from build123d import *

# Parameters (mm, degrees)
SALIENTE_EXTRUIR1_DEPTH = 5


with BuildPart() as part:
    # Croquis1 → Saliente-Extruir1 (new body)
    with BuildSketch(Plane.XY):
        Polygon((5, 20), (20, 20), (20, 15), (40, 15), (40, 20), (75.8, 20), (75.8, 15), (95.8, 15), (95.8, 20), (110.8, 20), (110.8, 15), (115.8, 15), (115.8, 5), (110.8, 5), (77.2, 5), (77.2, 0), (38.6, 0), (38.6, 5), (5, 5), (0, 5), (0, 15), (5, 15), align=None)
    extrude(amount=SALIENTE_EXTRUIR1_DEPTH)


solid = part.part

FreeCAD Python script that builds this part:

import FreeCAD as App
import Part
import Sketcher

V = App.Vector

doc = App.newDocument("Part")
body = doc.addObject("PartDesign::Body", "Body")

sketch1 = doc.addObject("Sketcher::SketchObject", "Sketch")
body.addObject(sketch1)
sketch1.AttachmentSupport = (doc.XY_Plane, [""])
sketch1.MapMode = "FlatFace"
sketch1.addGeometry([
    Part.LineSegment(V(20, 20, 0), V(5, 20, 0)),
    Part.LineSegment(V(5, 20, 0), V(5, 15, 0)),
    Part.LineSegment(V(5, 15, 0), V(0, 15, 0)),
    Part.LineSegment(V(0, 15, 0), V(0, 5, 0)),
    Part.LineSegment(V(0, 5, 0), V(38.6, 5, 0)),
    Part.LineSegment(V(38.6, 5, 0), V(38.6, 0, 0)),
    Part.LineSegment(V(38.6, 0, 0), V(77.2, 0, 0)),
    Part.LineSegment(V(77.2, 0, 0), V(77.2, 5, 0)),
    Part.LineSegment(V(77.2, 5, 0), V(115.8, 5, 0)),
    Part.LineSegment(V(115.8, 5, 0), V(115.8, 15, 0)),
    Part.LineSegment(V(115.8, 15, 0), V(110.8, 15, 0)),
    Part.LineSegment(V(110.8, 15, 0), V(110.8, 20, 0)),
    Part.LineSegment(V(110.8, 20, 0), V(95.8, 20, 0)),
    Part.LineSegment(V(95.8, 20, 0), V(95.8, 15, 0)),
    Part.LineSegment(V(95.8, 15, 0), V(75.8, 15, 0)),
    Part.LineSegment(V(75.8, 15, 0), V(75.8, 20, 0)),
    Part.LineSegment(V(75.8, 20, 0), V(40, 20, 0)),
    Part.LineSegment(V(40, 20, 0), V(40, 15, 0)),
    Part.LineSegment(V(40, 15, 0), V(20, 15, 0)),
    Part.LineSegment(V(20, 15, 0), V(20, 20, 0)),
], False)
sketch1.addConstraint([
    Sketcher.Constraint("Coincident", 0, 2, 1, 1),
    Sketcher.Constraint("Coincident", 1, 2, 2, 1),
    Sketcher.Constraint("Coincident", 2, 2, 3, 1),
    Sketcher.Constraint("Coincident", 3, 2, 4, 1),
    Sketcher.Constraint("Coincident", 4, 2, 5, 1),
    Sketcher.Constraint("Coincident", 5, 2, 6, 1),
    Sketcher.Constraint("Coincident", 6, 2, 7, 1),
    Sketcher.Constraint("Coincident", 7, 2, 8, 1),
    Sketcher.Constraint("Coincident", 8, 2, 9, 1),
    Sketcher.Constraint("Coincident", 9, 2, 10, 1),
    Sketcher.Constraint("Coincident", 10, 2, 11, 1),
    Sketcher.Constraint("Coincident", 11, 2, 12, 1),
    Sketcher.Constraint("Coincident", 12, 2, 13, 1),
    Sketcher.Constraint("Coincident", 13, 2, 14, 1),
    Sketcher.Constraint("Coincident", 14, 2, 15, 1),
    Sketcher.Constraint("Coincident", 15, 2, 16, 1),
    Sketcher.Constraint("Coincident", 16, 2, 17, 1),
    Sketcher.Constraint("Coincident", 17, 2, 18, 1),
    Sketcher.Constraint("Coincident", 18, 2, 19, 1),
    Sketcher.Constraint("Coincident", 19, 2, 0, 1),
    Sketcher.Constraint("Horizontal", 0),
    Sketcher.Constraint("Vertical", 1),
    Sketcher.Constraint("Horizontal", 2),
    Sketcher.Constraint("Vertical", 3),
    Sketcher.Constraint("Horizontal", 4),
    Sketcher.Constraint("Vertical", 5),
    Sketcher.Constraint("Horizontal", 6),
    Sketcher.Constraint("Vertical", 7),
    Sketcher.Constraint("Horizontal", 8),
    Sketcher.Constraint("Vertical", 9),
    Sketcher.Constraint("Horizontal", 10),
    Sketcher.Constraint("Vertical", 11),
    Sketcher.Constraint("Horizontal", 12),
    Sketcher.Constraint("Vertical", 13),
    Sketcher.Constraint("Horizontal", 14),
    Sketcher.Constraint("Vertical", 15),
    Sketcher.Constraint("Horizontal", 16),
    Sketcher.Constraint("Vertical", 17),
    Sketcher.Constraint("Horizontal", 18),
    Sketcher.Constraint("Vertical", 19),
    Sketcher.Constraint("PointOnObject", 2, 2, -2),
    Sketcher.Constraint("PointOnObject", 5, 2, -1),
    Sketcher.Constraint("Horizontal", 4, 2, 7, 2),
    Sketcher.Constraint("Horizontal", 2, 2, 9, 2),
    Sketcher.Constraint("Horizontal", 0, 2, 11, 2),
    Sketcher.Constraint("Horizontal", 10, 2, 13, 2),
    Sketcher.Constraint("Horizontal", 12, 2, 15, 2),
    Sketcher.Constraint("Horizontal", 14, 2, 17, 2),
    Sketcher.Constraint("Equal", 4, 6),
    Sketcher.Constraint("Equal", 6, 8),
    Sketcher.Constraint("Equal", 2, 10),
    Sketcher.Constraint("Equal", 0, 12),
    Sketcher.Constraint("Equal", 14, 18),
    Sketcher.Constraint("Equal", 10, 1),
    Sketcher.Constraint("Equal", 1, 5),
    Sketcher.Constraint("DistanceX", 0, 2, 0, 1, 15.0),
    Sketcher.Constraint("DistanceX", 2, 2, 2, 1, 5.0),
    Sketcher.Constraint("DistanceX", 14, 2, 14, 1, 20.0),
    Sketcher.Constraint("DistanceY", 3, 2, 3, 1, 10.0),
    Sketcher.Constraint("DistanceX", 4, 1, 4, 2, 38.6),
])
pad1 = doc.addObject("PartDesign::Pad", "Pad")
body.addObject(pad1)
pad1.Profile = sketch1
pad1.Length = 5

doc.recompute()
